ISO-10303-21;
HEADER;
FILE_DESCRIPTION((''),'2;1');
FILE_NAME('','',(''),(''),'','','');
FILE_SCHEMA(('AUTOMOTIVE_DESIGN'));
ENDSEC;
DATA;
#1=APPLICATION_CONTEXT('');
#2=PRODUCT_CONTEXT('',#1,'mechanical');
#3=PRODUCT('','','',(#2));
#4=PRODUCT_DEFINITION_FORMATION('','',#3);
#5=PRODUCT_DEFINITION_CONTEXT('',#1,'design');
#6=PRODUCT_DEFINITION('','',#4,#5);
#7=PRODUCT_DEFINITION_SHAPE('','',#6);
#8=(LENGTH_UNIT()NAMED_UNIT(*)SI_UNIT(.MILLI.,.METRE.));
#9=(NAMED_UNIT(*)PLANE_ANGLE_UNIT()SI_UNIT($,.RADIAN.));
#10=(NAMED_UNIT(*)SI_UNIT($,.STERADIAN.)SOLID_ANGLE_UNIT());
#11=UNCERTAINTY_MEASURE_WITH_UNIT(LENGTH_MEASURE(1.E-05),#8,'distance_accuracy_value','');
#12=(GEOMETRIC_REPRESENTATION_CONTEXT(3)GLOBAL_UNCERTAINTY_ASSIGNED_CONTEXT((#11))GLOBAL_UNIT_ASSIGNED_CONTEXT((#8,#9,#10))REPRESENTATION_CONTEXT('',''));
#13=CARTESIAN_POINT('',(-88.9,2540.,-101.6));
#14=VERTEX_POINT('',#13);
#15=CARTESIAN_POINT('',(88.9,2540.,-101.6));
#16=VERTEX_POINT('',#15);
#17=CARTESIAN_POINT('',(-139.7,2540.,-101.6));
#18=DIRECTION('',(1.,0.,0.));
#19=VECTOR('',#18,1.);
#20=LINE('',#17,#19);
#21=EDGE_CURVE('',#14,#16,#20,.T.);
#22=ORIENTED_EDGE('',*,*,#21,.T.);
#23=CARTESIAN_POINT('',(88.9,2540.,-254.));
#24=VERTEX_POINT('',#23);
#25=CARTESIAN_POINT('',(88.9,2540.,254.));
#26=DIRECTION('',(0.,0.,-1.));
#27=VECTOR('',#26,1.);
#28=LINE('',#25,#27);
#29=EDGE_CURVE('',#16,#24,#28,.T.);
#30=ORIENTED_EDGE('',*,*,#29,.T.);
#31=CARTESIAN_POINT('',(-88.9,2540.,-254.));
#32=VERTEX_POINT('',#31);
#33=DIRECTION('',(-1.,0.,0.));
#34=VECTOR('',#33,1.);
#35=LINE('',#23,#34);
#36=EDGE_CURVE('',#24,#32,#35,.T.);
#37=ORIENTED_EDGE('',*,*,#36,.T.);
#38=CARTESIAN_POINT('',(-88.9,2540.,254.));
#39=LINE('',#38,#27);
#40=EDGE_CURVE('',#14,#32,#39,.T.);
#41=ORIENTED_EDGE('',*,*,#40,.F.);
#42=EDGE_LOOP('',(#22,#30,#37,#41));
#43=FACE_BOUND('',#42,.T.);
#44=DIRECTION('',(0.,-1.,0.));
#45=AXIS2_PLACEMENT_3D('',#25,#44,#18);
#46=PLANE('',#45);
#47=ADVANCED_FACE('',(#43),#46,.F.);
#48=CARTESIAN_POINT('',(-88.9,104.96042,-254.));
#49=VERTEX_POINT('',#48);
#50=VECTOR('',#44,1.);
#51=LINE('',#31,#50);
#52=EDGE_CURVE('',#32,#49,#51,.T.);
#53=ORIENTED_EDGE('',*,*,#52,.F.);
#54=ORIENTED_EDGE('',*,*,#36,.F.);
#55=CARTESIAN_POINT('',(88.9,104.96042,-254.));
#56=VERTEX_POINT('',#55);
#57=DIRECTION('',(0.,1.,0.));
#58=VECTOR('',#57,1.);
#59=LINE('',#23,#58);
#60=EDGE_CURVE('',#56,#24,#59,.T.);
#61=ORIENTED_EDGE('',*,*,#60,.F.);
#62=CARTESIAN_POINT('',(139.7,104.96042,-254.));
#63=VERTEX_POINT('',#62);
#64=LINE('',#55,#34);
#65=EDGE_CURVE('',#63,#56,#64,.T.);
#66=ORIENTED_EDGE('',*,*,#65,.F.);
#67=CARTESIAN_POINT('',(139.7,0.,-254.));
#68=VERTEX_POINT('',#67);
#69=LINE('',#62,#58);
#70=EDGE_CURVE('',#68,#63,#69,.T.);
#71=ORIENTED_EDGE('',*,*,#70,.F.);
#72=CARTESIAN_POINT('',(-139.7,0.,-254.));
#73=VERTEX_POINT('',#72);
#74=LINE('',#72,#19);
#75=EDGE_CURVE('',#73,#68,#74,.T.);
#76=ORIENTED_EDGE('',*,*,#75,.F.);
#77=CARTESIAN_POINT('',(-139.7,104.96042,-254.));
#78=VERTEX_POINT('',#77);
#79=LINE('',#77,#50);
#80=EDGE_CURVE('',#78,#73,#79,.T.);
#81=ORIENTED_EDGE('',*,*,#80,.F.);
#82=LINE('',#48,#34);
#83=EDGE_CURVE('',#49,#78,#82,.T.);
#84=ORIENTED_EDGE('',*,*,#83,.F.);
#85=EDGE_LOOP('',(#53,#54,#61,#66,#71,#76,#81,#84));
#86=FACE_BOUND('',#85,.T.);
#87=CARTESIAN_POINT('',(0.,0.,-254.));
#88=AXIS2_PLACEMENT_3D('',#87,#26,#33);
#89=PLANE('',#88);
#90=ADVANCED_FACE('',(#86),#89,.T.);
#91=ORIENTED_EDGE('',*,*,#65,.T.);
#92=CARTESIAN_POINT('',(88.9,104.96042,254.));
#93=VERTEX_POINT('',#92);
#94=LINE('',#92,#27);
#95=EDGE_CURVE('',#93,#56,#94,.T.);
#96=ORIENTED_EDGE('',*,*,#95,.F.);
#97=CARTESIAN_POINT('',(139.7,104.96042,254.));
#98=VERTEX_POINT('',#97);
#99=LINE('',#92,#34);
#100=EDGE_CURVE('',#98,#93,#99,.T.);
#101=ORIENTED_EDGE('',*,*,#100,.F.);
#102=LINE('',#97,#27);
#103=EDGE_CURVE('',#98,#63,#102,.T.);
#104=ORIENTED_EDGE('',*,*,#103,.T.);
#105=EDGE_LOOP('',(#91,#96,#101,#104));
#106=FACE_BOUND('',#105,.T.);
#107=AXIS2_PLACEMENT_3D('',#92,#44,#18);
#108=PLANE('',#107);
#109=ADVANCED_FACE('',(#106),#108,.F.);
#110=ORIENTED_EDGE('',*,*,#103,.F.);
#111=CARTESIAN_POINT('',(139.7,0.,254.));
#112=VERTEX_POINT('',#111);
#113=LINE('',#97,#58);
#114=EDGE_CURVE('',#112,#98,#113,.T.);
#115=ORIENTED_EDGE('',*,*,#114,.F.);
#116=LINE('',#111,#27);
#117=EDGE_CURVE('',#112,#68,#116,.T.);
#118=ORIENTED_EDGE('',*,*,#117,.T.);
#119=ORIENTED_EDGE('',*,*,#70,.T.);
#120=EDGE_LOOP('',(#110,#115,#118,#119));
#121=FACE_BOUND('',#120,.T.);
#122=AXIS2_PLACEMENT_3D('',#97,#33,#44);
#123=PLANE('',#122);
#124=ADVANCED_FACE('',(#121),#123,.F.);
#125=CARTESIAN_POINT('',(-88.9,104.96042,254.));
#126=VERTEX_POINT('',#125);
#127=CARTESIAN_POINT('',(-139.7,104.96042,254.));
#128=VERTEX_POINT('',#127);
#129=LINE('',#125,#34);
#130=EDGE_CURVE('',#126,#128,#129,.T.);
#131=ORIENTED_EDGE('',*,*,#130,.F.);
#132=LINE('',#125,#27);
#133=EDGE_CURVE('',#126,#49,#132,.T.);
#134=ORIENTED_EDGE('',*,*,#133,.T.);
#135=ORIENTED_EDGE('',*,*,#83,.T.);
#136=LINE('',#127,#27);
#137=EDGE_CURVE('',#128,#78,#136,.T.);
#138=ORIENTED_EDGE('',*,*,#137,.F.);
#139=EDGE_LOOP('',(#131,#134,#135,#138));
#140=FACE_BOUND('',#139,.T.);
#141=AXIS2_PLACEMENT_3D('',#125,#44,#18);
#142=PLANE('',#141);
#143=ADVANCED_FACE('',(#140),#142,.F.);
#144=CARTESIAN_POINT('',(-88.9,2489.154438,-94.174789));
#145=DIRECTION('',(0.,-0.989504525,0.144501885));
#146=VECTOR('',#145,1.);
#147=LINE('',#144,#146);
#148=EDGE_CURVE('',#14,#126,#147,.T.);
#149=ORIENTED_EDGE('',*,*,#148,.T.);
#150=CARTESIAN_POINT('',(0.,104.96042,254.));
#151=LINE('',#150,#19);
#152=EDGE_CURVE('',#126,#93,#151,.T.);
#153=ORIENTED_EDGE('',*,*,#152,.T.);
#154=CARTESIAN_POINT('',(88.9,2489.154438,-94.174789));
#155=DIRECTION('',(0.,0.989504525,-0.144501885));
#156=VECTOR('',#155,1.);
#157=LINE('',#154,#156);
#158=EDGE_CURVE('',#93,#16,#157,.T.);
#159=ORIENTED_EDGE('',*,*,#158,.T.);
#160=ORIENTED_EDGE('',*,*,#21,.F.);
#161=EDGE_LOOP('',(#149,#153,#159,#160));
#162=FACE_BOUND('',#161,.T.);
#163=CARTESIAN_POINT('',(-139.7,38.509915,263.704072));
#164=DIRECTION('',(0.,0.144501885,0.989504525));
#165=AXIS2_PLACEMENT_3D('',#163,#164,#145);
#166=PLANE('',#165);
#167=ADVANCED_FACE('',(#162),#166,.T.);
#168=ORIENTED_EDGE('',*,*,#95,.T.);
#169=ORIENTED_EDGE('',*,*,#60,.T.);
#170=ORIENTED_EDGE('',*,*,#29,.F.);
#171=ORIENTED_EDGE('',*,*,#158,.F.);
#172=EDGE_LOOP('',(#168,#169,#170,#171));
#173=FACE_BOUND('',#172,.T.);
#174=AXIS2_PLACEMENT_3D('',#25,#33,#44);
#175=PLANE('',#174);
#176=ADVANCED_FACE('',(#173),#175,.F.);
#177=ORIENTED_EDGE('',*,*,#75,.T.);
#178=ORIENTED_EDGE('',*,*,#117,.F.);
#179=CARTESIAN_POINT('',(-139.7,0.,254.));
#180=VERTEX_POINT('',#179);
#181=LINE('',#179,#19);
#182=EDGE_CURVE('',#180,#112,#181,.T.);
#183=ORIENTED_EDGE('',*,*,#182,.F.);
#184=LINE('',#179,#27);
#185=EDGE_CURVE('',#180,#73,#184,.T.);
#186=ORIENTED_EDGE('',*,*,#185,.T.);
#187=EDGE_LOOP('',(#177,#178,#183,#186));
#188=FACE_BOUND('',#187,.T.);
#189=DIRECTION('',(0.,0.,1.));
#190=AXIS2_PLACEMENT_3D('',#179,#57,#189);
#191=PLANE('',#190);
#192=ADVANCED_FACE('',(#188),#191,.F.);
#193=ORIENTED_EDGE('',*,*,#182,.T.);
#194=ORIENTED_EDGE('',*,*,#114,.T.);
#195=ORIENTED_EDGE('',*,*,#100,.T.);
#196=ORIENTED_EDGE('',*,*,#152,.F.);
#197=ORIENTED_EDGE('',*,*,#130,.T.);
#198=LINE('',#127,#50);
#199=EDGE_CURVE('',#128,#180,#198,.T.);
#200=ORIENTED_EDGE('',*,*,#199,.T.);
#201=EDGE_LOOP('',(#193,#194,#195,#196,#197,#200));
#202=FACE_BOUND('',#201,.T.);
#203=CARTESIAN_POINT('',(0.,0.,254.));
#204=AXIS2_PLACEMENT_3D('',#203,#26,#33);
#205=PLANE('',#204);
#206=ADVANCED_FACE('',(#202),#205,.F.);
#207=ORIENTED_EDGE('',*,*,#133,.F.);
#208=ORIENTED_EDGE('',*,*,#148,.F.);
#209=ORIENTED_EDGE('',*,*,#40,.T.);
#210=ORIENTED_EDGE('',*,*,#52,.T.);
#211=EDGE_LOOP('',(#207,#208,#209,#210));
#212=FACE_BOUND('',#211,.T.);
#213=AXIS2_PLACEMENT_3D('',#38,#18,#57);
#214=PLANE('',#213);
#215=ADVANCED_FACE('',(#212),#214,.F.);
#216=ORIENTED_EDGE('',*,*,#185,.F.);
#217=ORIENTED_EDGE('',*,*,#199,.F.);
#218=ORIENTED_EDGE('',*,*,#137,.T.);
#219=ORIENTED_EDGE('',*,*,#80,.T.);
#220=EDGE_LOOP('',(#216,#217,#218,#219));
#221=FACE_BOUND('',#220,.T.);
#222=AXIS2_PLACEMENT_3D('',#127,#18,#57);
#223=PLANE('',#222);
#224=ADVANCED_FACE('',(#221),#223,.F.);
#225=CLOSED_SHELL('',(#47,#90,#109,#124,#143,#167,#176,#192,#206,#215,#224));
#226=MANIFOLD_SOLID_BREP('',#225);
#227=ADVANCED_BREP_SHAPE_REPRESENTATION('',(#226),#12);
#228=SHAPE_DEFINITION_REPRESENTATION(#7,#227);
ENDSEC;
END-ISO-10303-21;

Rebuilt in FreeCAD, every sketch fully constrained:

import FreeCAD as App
import Part
import Sketcher
from FreeCAD import Vector
Q = App.Units.Quantity

doc = App.newDocument("Part")
body = doc.addObject("PartDesign::Body", "Body")

sketch1 = doc.addObject("Sketcher::SketchObject", "Sketch")
body.addObject(sketch1)
sketch1.AttachmentSupport = (doc.XY_Plane, [""])
sketch1.MapMode = "FlatFace"
sketch1.addGeometry([
    Part.LineSegment(Vector(89, 2540, 0), Vector(-89, 2540, 0)),
    Part.LineSegment(Vector(-89, 2540, 0), Vector(-89, 105, 0)),
    Part.LineSegment(Vector(-89, 105, 0), Vector(-140, 105, 0)),
    Part.LineSegment(Vector(-140, 105, 0), Vector(-140, 0, 0)),
    Part.LineSegment(Vector(-140, 0, 0), Vector(140, 0, 0)),
    Part.LineSegment(Vector(140, 0, 0), Vector(140, 105, 0)),
    Part.LineSegment(Vector(140, 105, 0), Vector(89, 105, 0)),
    Part.LineSegment(Vector(89, 105, 0), Vector(89, 2540, 0)),
], False)
sketch1.addConstraint([
    Sketcher.Constraint("Coincident", 0, 2, 1, 1),
    Sketcher.Constraint("Coincident", 1, 2, 2, 1),
    Sketcher.Constraint("Coincident", 2, 2, 3, 1),
    Sketcher.Constraint("Coincident", 3, 2, 4, 1),
    Sketcher.Constraint("Coincident", 4, 2, 5, 1),
    Sketcher.Constraint("Coincident", 5, 2, 6, 1),
    Sketcher.Constraint("Coincident", 6, 2, 7, 1),
    Sketcher.Constraint("Coincident", 7, 2, 0, 1),
    Sketcher.Constraint("Horizontal", 0),
    Sketcher.Constraint("Vertical", 1),
    Sketcher.Constraint("Horizontal", 2),
    Sketcher.Constraint("Vertical", 3),
    Sketcher.Constraint("Horizontal", 4),
    Sketcher.Constraint("Vertical", 5),
    Sketcher.Constraint("Horizontal", 6),
    Sketcher.Constraint("Vertical", 7),
    Sketcher.Constraint("Symmetric", 3, 2, 4, 2, -1, 1),
    Sketcher.Constraint("Symmetric", 1, 2, 6, 2, -2),
    Sketcher.Constraint("DistanceX", 0, 2, 0, 1, Q("7 in")),
    Sketcher.Constraint("DistanceX", 2, 2, 2, 1, Q("2 in")),
    Sketcher.Constraint("DistanceY", -1, 1, 0, 2, Q("100 in")),
    Sketcher.Constraint("DistanceY", 1, 2, 1, 1, Q("95.8677 in")),
])
pad1 = doc.addObject("PartDesign::Pad", "Pad")
body.addObject(pad1)
pad1.Profile = sketch1
pad1.Length = Q("20 in")
pad1.Midplane = True

sketch2 = doc.addObject("Sketcher::SketchObject", "Sketch001")
body.addObject(sketch2)
sketch2.AttachmentSupport = (doc.YZ_Plane, [""])
sketch2.MapMode = "FlatFace"
sketch2.addGeometry([
    Part.LineSegment(Vector(105, 254, 0), Vector(2540, -102, 0)),
    Part.LineSegment(Vector(2540, -102, 0), Vector(2540, 254, 0)),
    Part.LineSegment(Vector(2540, 254, 0), Vector(105, 254, 0)),
], False)
sketch2.addConstraint([
    Sketcher.Constraint("Coincident", 0, 2, 1, 1),
    Sketcher.Constraint("Coincident", 1, 2, 2, 1),
    Sketcher.Constraint("Coincident", 2, 2, 0, 1),
    Sketcher.Constraint("Vertical", 1),
    Sketcher.Constraint("Horizontal", 2),
    Sketcher.Constraint("DistanceY", 1, 1, 1, 2, Q("14 in")),
    Sketcher.Constraint("DistanceX", -1, 1, 0, 2, Q("100 in")),
    Sketcher.Constraint("DistanceY", 0, 2, -1, 1, Q("4 in")),
    Sketcher.Constraint("DistanceX", 2, 2, 2, 1, Q("95.8677 in")),
])
pocket1 = doc.addObject("PartDesign::Pocket", "Pocket")
body.addObject(pocket1)
pocket1.Profile = sketch2
pocket1.Type = "ThroughAll"
pocket1.Midplane = True

doc.recompute()
